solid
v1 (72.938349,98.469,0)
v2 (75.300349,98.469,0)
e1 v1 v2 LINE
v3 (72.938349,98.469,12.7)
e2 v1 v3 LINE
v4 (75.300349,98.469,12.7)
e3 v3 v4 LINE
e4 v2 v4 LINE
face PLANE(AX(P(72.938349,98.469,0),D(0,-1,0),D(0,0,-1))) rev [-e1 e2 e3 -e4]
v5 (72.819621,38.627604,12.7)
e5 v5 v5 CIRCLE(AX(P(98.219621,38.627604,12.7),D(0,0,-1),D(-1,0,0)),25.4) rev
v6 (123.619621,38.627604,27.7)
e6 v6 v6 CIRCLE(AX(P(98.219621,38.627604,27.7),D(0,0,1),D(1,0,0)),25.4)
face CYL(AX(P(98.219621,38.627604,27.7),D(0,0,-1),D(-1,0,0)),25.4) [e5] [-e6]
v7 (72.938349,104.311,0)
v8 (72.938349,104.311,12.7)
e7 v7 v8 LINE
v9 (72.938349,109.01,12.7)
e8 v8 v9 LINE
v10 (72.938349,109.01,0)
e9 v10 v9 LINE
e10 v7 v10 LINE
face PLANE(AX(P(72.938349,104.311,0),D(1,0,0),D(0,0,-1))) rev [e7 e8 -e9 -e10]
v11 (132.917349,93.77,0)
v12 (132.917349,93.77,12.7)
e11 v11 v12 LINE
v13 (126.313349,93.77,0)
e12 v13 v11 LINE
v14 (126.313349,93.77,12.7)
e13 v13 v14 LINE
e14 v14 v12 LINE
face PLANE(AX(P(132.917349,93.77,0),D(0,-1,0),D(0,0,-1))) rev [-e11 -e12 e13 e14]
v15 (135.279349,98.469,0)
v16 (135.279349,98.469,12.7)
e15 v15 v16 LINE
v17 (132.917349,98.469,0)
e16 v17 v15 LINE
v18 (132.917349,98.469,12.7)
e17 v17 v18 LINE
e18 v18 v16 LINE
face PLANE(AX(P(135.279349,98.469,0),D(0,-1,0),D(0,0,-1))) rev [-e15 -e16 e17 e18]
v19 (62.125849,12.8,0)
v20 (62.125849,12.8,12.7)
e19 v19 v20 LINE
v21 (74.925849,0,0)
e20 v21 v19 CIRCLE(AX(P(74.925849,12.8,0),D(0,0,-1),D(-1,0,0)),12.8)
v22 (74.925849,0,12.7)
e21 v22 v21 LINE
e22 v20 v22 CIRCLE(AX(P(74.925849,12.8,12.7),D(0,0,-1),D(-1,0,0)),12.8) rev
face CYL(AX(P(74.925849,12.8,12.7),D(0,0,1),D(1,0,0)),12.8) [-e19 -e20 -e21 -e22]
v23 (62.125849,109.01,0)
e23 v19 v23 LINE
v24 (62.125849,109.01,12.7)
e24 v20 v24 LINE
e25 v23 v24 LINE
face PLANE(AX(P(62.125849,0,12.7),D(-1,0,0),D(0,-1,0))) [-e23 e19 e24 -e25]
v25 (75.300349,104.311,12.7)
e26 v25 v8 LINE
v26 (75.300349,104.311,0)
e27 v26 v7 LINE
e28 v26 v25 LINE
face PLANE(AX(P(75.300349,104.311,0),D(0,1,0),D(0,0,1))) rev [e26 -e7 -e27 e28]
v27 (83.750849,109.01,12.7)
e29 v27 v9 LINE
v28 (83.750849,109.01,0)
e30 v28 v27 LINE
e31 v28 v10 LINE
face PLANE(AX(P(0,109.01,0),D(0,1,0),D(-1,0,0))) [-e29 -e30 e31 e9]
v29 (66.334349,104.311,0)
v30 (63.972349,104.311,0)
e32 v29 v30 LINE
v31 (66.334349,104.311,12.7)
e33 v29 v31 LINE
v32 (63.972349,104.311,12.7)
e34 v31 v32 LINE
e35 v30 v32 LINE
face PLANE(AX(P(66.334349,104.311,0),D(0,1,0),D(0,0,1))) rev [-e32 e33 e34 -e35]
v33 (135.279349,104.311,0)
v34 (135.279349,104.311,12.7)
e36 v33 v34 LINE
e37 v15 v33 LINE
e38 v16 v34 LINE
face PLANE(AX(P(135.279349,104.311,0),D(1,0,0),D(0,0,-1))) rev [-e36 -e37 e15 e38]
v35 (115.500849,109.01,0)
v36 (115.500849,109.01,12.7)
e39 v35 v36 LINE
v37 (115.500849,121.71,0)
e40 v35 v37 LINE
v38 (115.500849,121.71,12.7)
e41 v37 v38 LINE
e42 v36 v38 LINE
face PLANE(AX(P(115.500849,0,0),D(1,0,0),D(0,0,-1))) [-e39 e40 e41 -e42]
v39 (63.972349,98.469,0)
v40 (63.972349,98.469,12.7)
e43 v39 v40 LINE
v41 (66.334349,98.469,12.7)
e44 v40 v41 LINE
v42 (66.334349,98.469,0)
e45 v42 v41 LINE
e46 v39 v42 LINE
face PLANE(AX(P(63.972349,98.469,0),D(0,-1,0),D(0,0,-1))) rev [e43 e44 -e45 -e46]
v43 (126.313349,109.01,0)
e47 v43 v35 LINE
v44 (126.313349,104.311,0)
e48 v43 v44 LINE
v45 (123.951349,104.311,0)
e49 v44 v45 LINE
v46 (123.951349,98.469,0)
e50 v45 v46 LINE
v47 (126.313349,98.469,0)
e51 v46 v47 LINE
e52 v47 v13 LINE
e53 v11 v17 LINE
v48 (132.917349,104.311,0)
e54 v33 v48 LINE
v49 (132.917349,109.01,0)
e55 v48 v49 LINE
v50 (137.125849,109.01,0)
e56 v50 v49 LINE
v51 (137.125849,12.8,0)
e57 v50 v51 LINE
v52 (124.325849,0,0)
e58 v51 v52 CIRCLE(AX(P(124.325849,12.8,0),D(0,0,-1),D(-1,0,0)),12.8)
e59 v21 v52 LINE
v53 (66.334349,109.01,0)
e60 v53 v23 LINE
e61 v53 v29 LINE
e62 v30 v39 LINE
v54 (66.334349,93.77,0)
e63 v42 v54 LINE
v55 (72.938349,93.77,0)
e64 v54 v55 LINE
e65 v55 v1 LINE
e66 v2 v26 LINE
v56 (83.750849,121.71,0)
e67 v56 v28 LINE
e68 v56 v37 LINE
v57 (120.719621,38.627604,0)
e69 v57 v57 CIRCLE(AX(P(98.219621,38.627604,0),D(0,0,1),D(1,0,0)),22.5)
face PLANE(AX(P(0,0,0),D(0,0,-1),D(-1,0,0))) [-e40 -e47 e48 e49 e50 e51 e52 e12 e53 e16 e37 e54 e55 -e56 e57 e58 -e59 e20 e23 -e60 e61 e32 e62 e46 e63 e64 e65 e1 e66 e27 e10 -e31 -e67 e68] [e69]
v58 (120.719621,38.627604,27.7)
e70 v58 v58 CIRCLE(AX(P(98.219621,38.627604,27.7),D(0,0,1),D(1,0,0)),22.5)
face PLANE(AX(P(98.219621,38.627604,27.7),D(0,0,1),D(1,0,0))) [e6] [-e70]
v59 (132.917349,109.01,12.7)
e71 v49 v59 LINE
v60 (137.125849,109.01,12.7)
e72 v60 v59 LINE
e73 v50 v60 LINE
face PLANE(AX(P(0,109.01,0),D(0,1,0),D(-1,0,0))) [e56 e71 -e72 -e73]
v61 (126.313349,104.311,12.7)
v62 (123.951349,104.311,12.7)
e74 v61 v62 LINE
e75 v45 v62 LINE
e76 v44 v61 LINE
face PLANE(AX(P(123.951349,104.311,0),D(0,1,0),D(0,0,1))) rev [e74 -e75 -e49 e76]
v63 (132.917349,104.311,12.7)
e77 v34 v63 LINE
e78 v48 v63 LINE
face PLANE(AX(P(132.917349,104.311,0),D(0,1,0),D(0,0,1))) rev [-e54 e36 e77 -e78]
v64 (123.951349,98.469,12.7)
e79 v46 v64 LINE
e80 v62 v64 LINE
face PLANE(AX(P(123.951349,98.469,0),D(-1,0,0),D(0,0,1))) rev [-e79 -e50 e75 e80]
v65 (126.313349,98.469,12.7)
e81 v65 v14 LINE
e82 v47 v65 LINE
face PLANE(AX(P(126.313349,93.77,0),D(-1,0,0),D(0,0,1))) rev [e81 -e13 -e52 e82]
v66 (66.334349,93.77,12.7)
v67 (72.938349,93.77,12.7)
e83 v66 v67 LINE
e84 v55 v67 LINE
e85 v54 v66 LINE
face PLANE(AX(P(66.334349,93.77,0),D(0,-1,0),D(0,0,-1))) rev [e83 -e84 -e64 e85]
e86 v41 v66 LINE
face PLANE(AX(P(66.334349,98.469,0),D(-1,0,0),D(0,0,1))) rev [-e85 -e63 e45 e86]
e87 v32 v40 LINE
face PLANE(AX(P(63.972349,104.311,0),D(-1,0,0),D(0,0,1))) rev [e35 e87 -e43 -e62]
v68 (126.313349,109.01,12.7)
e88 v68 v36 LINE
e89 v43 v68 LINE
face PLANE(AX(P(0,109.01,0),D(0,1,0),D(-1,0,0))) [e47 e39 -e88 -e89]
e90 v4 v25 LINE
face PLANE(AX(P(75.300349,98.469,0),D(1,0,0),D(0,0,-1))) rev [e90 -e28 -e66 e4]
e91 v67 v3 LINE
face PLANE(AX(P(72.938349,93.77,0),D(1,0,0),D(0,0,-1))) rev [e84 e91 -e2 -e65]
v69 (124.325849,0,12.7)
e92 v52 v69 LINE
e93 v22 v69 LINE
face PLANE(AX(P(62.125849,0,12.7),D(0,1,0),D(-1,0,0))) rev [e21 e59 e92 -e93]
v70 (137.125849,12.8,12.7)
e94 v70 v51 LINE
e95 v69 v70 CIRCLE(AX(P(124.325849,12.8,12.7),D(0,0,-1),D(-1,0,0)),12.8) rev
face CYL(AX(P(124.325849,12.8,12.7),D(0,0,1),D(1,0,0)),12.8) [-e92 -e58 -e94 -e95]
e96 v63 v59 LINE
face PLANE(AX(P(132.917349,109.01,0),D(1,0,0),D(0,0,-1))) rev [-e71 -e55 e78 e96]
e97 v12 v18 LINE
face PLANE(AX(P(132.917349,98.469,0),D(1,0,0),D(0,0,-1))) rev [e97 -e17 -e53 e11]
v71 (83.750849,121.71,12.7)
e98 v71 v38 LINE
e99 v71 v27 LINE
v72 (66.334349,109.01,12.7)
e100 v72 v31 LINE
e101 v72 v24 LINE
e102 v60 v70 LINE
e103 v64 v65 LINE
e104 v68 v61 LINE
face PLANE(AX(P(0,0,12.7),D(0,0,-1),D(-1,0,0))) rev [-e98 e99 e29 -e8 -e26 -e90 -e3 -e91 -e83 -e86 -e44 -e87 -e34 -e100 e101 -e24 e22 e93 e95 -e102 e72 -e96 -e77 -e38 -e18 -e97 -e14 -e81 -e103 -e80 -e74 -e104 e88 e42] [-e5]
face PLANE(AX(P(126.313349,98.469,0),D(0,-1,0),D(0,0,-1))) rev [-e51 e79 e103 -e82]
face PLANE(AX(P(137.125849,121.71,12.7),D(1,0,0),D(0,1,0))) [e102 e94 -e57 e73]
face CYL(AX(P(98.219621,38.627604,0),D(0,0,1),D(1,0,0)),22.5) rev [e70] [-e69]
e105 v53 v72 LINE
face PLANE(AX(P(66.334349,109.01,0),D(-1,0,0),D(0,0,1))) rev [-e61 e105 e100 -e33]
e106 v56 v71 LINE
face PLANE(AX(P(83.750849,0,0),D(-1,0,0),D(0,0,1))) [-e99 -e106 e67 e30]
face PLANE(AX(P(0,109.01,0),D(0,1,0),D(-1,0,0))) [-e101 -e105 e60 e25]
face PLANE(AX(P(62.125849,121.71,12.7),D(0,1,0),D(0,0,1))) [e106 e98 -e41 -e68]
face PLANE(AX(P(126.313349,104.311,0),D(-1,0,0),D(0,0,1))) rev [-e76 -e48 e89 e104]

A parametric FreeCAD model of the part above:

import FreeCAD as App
import Part
import Sketcher

V = App.Vector
Q = App.Units.Quantity


def edges_at(feature, points):
    """Names of the edges that pass closest to the given points."""
    edges = feature.Shape.Edges
    near = lambda p: min(range(len(edges)), key=lambda i: edges[i].distToShape(Part.Vertex(*p))[0])
    return sorted({f"Edge{near(p) + 1}" for p in points})


def add_polygon(sketch, points):
    """Adds a closed chain of lines whose ends are joined by coincident constraints."""
    first, n = sketch.GeometryCount, len(points)
    for a, b in zip(points, points[1:] + points[:1]):
        sketch.addGeometry(Part.LineSegment(App.Vector(*a, 0), App.Vector(*b, 0)), False)
    for i in range(n):
        sketch.addConstraint(Sketcher.Constraint("Coincident", first + i, 2, first + (i + 1) % n, 1))

doc = App.newDocument("Part")
body = doc.addObject("PartDesign::Body", "Body")

# Sketch on XY plane
sketch1 = body.newObject("Sketcher::SketchObject", "Sketch")
sketch1.AttachmentSupport = (doc.getObject("XY_Plane"), [""])
sketch1.MapMode = "FlatFace"
add_polygon(sketch1, [(62, 122), (62, 0), (137, 0), (137, 122)])  # lines 0-3
sketch1.addConstraint(Sketcher.Constraint("Vertical", 0))
sketch1.addConstraint(Sketcher.Constraint("Horizontal", 1))
sketch1.addConstraint(Sketcher.Constraint("Vertical", 2))
sketch1.addConstraint(Sketcher.Constraint("Horizontal", 3))
sketch1.addConstraint(Sketcher.Constraint("PointOnObject", 0, 2, -1))
sketch1.addConstraint(Sketcher.Constraint("DistanceX", 1, 1, 1, 2, 75.0))
sketch1.addConstraint(Sketcher.Constraint("DistanceY", 0, 2, 0, 1, 121.71))
sketch1.addConstraint(Sketcher.Constraint("DistanceX", -1, 1, 0, 2, 62.125849))
pad1 = body.newObject("PartDesign::Pad", "Pad")
pad1.Profile = sketch1
pad1.Length = Q("0.5 in")

# Sketch on XY plane
sketch2 = body.newObject("Sketcher::SketchObject", "Sketch001")
sketch2.AttachmentSupport = (doc.getObject("XY_Plane"), [""])
sketch2.MapMode = "FlatFace"
sketch2.AttachmentOffset = App.Placement(V(0, 0, 0.5 * 25.4), App.Rotation())
sketch2.addGeometry(Part.Circle(V(98, 39, 0), V(0, 0, 1), 25), False)
sketch2.addConstraint(Sketcher.Constraint("Diameter", 0, Q("2 in")))
sketch2.addConstraint(Sketcher.Constraint("DistanceX", -1, 1, 0, 3, 98.219621))
sketch2.addConstraint(Sketcher.Constraint("DistanceY", -1, 1, 0, 3, 38.627604))
pad2 = body.newObject("PartDesign::Pad", "Pad001")
pad2.Profile = sketch2
pad2.Length = 15

# Sketch on XY plane
sketch3 = body.newObject("Sketcher::SketchObject", "Sketch002")
sketch3.AttachmentSupport = (doc.getObject("XY_Plane"), [""])
sketch3.MapMode = "FlatFace"
sketch3.AttachmentOffset = App.Placement(V(0, 0, 27.7), App.Rotation())
sketch3.addGeometry(Part.Circle(V(98, 39, 0), V(0, 0, 1), 22), False)
sketch3.addConstraint(Sketcher.Constraint("Diameter", 0, 45.0))
sketch3.addConstraint(Sketcher.Constraint("DistanceX", -1, 1, 0, 3, 98.219621))
sketch3.addConstraint(Sketcher.Constraint("DistanceY", -1, 1, 0, 3, 38.627604))
pocket1 = body.newObject("PartDesign::Pocket", "Pocket")
pocket1.Profile = sketch3
pocket1.Type = "ThroughAll"
doc.recompute()

fillet = body.newObject("PartDesign::Fillet", "Fillet")
fillet.Base = (pocket1, edges_at(pocket1, [(62.126, 0, 6.35), (137.126, 0, 6.35)]))
fillet.Radius = 12.8

# Sketch on XY plane
sketch4 = body.newObject("Sketcher::SketchObject", "Sketch003")
sketch4.AttachmentSupport = (doc.getObject("XY_Plane"), [""])
sketch4.MapMode = "FlatFace"
sketch4.AttachmentOffset = App.Placement(V(0, 0, 0.5 * 25.4), App.Rotation())
add_polygon(sketch4, [(62, 122), (62, 109), (84, 109), (84, 122)])  # lines 0-3
add_polygon(sketch4, [(116, 122), (116, 109), (137, 109), (137, 122)])  # lines 4-7
sketch4.addConstraint(Sketcher.Constraint("Vertical", 0))
sketch4.addConstraint(Sketcher.Constraint("Horizontal", 1))
sketch4.addConstraint(Sketcher.Constraint("Vertical", 2))
sketch4.addConstraint(Sketcher.Constraint("Horizontal", 3))
sketch4.addConstraint(Sketcher.Constraint("Vertical", 4))
sketch4.addConstraint(Sketcher.Constraint("Horizontal", 5))
sketch4.addConstraint(Sketcher.Constraint("Vertical", 6))
sketch4.addConstraint(Sketcher.Constraint("Horizontal", 7))
sketch4.addConstraint(Sketcher.Constraint("Horizontal", 1, 2, 4, 2))
sketch4.addConstraint(Sketcher.Constraint("Horizontal", 3, 2, 6, 2))
sketch4.addConstraint(Sketcher.Constraint("Equal", 3, 5))
sketch4.addConstraint(Sketcher.Constraint("DistanceY", 0, 2, 0, 1, Q("0.5 in")))
sketch4.addConstraint(Sketcher.Constraint("DistanceX", 1, 2, 4, 2, Q("1.25 in")))
sketch4.addConstraint(Sketcher.Constraint("DistanceX", 1, 1, 1, 2, 21.625))
sketch4.addConstraint(Sketcher.Constraint("DistanceY", -1, 1, 0, 2, 109.01))
sketch4.addConstraint(Sketcher.Constraint("DistanceX", -1, 1, 0, 2, 62.125849))
pocket2 = body.newObject("PartDesign::Pocket", "Pocket001")
pocket2.Profile = sketch4
pocket2.Type = "ThroughAll"

# Sketch on XY plane
sketch5 = body.newObject("Sketcher::SketchObject", "Sketch004")
sketch5.AttachmentSupport = (doc.getObject("XY_Plane"), [""])
sketch5.MapMode = "FlatFace"
sketch5.AttachmentOffset = App.Placement(V(0, 0, 0.5 * 25.4), App.Rotation())
add_polygon(sketch5, [(132.9, 104.3), (132.9, 109), (126.3, 109), (126.3, 104.3), (124, 104.3), (124, 98.5), (126.3, 98.5), (126.3, 93.8), (132.9, 93.8), (132.9, 98.5), (135.3, 98.5), (135.3, 104.3)])  # lines 0-11
add_polygon(sketch5, [(72.9, 98.5), (75.3, 98.5), (75.3, 104.3), (72.9, 104.3), (72.9, 109), (66.3, 109), (66.3, 104.3), (64, 104.3), (64, 98.5), (66.3, 98.5), (66.3, 93.8), (72.9, 93.8)])  # lines 12-23
sketch5.addConstraint(Sketcher.Constraint("Vertical", 0))
sketch5.addConstraint(Sketcher.Constraint("Horizontal", 1))
sketch5.addConstraint(Sketcher.Constraint("Vertical", 2))
sketch5.addConstraint(Sketcher.Constraint("Horizontal", 3))
sketch5.addConstraint(Sketcher.Constraint("Vertical", 4))
sketch5.addConstraint(Sketcher.Constraint("Horizontal", 5))
sketch5.addConstraint(Sketcher.Constraint("Vertical", 6))
sketch5.addConstraint(Sketcher.Constraint("Horizontal", 7))
sketch5.addConstraint(Sketcher.Constraint("Vertical", 8))
sketch5.addConstraint(Sketcher.Constraint("Horizontal", 9))
sketch5.addConstraint(Sketcher.Constraint("Vertical", 10))
sketch5.addConstraint(Sketcher.Constraint("Horizontal", 11))
sketch5.addConstraint(Sketcher.Constraint("Horizontal", 12))
sketch5.addConstraint(Sketcher.Constraint("Vertical", 13))
sketch5.addConstraint(Sketcher.Constraint("Horizontal", 14))
sketch5.addConstraint(Sketcher.Constraint("Vertical", 15))
sketch5.addConstraint(Sketcher.Constraint("Horizontal", 16))
sketch5.addConstraint(Sketcher.Constraint("Vertical", 17))
sketch5.addConstraint(Sketcher.Constraint("Horizontal", 18))
sketch5.addConstraint(Sketcher.Constraint("Vertical", 19))
sketch5.addConstraint(Sketcher.Constraint("Horizontal", 20))
sketch5.addConstraint(Sketcher.Constraint("Vertical", 21))
sketch5.addConstraint(Sketcher.Constraint("Horizontal", 22))
sketch5.addConstraint(Sketcher.Constraint("Vertical", 23))
sketch5.addConstraint(Sketcher.Constraint("Horizontal", 5, 2, 8, 2))
sketch5.addConstraint(Sketcher.Constraint("Horizontal", 3, 2, 10, 2))
sketch5.addConstraint(Sketcher.Constraint("Horizontal", 9, 2, 12, 2))
sketch5.addConstraint(Sketcher.Constraint("Horizontal", 11, 2, 13, 2))
sketch5.addConstraint(Sketcher.Constraint("Horizontal", 1, 2, 15, 2))
sketch5.addConstraint(Sketcher.Constraint("Horizontal", 14, 2, 17, 2))
sketch5.addConstraint(Sketcher.Constraint("Horizontal", 12, 2, 19, 2))
sketch5.addConstraint(Sketcher.Constraint("Horizontal", 7, 2, 21, 2))
sketch5.addConstraint(Sketcher.Constraint("Vertical", 2, 2, 5, 2))
sketch5.addConstraint(Sketcher.Constraint("Vertical", 0, 2, 7, 2))
sketch5.addConstraint(Sketcher.Constraint("Vertical", 17, 2, 20, 2))
sketch5.addConstraint(Sketcher.Constraint("Vertical", 15, 2, 22, 2))
sketch5.addConstraint(Sketcher.Constraint("Equal", 5, 9))
sketch5.addConstraint(Sketcher.Constraint("Equal", 11, 12))
sketch5.addConstraint(Sketcher.Constraint("Equal", 7, 16))
sketch5.addConstraint(Sketcher.Constraint("Equal", 14, 18))
sketch5.addConstraint(Sketcher.Constraint("Equal", 2, 6))
sketch5.addConstraint(Sketcher.Constraint("DistanceX", 1, 2, 1, 1, Q("0.26 in")))
sketch5.addConstraint(Sketcher.Constraint("DistanceY", 4, 2, 4, 1, Q("0.23 in")))
sketch5.addConstraint(Sketcher.Constraint("DistanceY", 6, 2, 1, 2, Q("0.6 in")))
sketch5.addConstraint(Sketcher.Constraint("DistanceX", 3, 2, 3, 1, 2.362))
sketch5.addConstraint(Sketcher.Constraint("DistanceY", -1, 1, 0, 2, 109.01))
sketch5.addConstraint(Sketcher.Constraint("DistanceX", 12, 2, 4, 2, 48.651))
sketch5.addConstraint(Sketcher.Constraint("DistanceX", -1, 1, 0, 2, 132.917349))
pocket3 = body.newObject("PartDesign::Pocket", "Pocket002")
pocket3.Profile = sketch5
pocket3.Type = "ThroughAll"

doc.recompute()
